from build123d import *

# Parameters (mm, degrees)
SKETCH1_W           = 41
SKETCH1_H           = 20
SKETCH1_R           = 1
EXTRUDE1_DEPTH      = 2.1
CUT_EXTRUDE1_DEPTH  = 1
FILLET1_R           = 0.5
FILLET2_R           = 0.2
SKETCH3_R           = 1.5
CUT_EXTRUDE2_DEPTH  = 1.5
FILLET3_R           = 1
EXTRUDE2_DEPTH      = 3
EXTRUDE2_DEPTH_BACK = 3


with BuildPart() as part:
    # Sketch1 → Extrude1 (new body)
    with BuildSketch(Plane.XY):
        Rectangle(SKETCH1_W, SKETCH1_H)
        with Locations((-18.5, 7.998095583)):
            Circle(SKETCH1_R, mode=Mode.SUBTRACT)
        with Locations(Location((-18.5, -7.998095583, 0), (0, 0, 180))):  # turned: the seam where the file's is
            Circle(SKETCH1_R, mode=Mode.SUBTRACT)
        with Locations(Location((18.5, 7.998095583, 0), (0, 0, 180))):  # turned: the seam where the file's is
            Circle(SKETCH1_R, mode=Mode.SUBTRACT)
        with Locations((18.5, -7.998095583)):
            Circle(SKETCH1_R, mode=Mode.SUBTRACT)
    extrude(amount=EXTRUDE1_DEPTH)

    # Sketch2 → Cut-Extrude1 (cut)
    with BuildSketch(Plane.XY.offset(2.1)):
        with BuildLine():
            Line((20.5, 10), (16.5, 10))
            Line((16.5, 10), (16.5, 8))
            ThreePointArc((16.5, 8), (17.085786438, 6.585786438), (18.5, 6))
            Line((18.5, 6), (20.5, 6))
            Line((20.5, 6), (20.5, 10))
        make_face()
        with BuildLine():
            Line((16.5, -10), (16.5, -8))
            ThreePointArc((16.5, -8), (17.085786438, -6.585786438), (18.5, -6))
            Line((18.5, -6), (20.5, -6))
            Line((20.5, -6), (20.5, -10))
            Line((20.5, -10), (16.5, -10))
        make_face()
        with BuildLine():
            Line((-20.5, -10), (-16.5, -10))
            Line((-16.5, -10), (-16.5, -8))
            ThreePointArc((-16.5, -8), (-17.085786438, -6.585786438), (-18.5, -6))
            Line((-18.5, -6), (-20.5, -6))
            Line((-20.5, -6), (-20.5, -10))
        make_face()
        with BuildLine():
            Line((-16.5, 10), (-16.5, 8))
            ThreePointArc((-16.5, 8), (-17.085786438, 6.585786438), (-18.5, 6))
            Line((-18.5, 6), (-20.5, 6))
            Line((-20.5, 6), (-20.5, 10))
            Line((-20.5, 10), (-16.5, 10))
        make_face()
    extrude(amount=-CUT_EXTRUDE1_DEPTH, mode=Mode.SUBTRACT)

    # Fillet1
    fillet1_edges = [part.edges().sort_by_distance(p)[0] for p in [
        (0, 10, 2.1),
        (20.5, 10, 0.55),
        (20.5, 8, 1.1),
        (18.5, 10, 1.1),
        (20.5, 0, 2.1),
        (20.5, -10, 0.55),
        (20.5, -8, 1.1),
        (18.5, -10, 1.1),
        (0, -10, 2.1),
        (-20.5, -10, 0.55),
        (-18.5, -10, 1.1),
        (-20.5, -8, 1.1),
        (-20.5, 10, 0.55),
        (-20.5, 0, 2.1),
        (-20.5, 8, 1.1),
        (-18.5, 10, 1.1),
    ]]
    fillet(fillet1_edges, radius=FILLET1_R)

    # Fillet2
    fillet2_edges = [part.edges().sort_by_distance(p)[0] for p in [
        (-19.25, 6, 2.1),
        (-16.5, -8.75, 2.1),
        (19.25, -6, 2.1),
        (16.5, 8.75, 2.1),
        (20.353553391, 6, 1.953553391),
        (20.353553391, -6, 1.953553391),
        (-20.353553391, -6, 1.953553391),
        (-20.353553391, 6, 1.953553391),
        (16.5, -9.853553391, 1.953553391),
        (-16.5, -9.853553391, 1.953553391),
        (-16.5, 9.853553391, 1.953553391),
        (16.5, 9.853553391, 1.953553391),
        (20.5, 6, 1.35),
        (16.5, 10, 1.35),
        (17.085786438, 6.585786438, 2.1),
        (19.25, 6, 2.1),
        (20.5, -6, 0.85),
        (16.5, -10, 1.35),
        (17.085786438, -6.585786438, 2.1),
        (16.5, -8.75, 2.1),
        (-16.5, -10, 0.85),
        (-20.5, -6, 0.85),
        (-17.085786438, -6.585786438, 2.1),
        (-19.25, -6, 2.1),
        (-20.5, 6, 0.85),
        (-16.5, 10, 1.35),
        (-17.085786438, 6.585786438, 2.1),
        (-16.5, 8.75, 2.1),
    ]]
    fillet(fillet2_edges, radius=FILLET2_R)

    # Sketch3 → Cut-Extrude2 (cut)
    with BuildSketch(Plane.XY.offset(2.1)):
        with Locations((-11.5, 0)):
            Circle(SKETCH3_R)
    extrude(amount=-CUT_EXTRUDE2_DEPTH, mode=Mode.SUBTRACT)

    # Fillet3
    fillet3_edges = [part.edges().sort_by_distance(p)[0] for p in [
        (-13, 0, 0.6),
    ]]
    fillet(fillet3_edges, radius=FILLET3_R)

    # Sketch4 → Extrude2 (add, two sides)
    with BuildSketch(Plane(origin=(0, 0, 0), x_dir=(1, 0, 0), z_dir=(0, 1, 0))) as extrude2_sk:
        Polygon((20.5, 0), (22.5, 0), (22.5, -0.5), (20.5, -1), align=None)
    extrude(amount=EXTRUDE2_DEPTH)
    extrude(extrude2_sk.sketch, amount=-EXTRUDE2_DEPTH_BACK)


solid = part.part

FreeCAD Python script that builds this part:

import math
import FreeCAD as App
import Part
import Sketcher

V = App.Vector


def edges_at(feature, points):
    """Names of the edges that pass closest to the given points."""
    edges = feature.Shape.Edges
    near = lambda p: min(range(len(edges)), key=lambda i: edges[i].distToShape(Part.Vertex(*p))[0])
    return sorted({f"Edge{near(p) + 1}" for p in points})


def add_polygon(sketch, points):
    """Adds a closed chain of lines whose ends are joined by coincident constraints."""
    first, n = sketch.GeometryCount, len(points)
    for a, b in zip(points, points[1:] + points[:1]):
        sketch.addGeometry(Part.LineSegment(App.Vector(*a, 0), App.Vector(*b, 0)), False)
    for i in range(n):
        sketch.addConstraint(Sketcher.Constraint("Coincident", first + i, 2, first + (i + 1) % n, 1))

doc = App.newDocument("Part")
params = doc.addObject("Spreadsheet::Sheet", "Params")
for row, (alias, value) in enumerate([
    ("sketch1_diameter", "2 mm"),
    ("sketch1_width", "41 mm"),
    ("sketch1_height", "20 mm"),
    ("pad1_length", "2.1 mm"),
    ("sketch2_radius", "2 mm"),
    ("sketch2_width", "4 mm"),
    ("pocket1_length", "1 mm"),
    ("fillet_radius", "0.5 mm"),
    ("fillet2_radius", "0.2 mm"),
    ("sketch3_diameter", "3 mm"),
    ("pocket2_length", "1.5 mm"),
    ("fillet3_radius", "1 mm"),
    ("sketch4_width", "2 mm"),
    ("sketch4_height", "1 mm"),
    ("sketch4_height2", "0.5 mm"),
    ("pad2_length", "3 mm"),
    ("pad2_length2", "3 mm"),
], start=1):
    params.set(f"A{row}", alias)
    params.set(f"B{row}", "=" + value)
    params.setAlias(f"B{row}", alias)

body = doc.addObject("PartDesign::Body", "Body")

# Sketch on XY plane
sketch1 = doc.addObject("Sketcher::SketchObject", "Sketch")
body.addObject(sketch1)
sketch1.AttachmentSupport = (doc.XY_Plane, [""])
sketch1.MapMode = "FlatFace"
add_polygon(sketch1, [(-20.5, 10), (-20.5, -10), (20.5, -10), (20.5, 10)])  # lines 0-3
sketch1.addGeometry(Part.Circle(V(-18.5, -7.998096, 0), V(0, 0, 1), 1), False)  # 4
sketch1.addGeometry(Part.Circle(V(18.5, -7.998096, 0), V(0, 0, 1), 1), False)  # 5
sketch1.addGeometry(Part.Circle(V(-18.5, 7.998096, 0), V(0, 0, 1), 1), False)  # 6
sketch1.addGeometry(Part.Circle(V(18.5, 7.998096, 0), V(0, 0, 1), 1), False)  # 7
sketch1.addConstraint(Sketcher.Constraint("Vertical", 0))
sketch1.addConstraint(Sketcher.Constraint("Horizontal", 1))
sketch1.addConstraint(Sketcher.Constraint("Vertical", 2))
sketch1.addConstraint(Sketcher.Constraint("Horizontal", 3))
sketch1.addConstraint(Sketcher.Constraint("Equal", 4, 5))
sketch1.addConstraint(Sketcher.Constraint("Equal", 5, 6))
sketch1.addConstraint(Sketcher.Constraint("Equal", 6, 7))
sketch1.addConstraint(Sketcher.Constraint("Symmetric", 5, 3, 6, 3, -1, 1))
sketch1.addConstraint(Sketcher.Constraint("Symmetric", 4, 3, 7, 3, -1, 1))
sketch1.addConstraint(Sketcher.Constraint("Symmetric", 0, 2, 2, 2, -1, 1))
sketch1.addConstraint(Sketcher.Constraint("Symmetric", 4, 3, 5, 3, -2))
sketch1.addConstraint(Sketcher.Constraint("Diameter", 4, 2.0))
sketch1.addConstraint(Sketcher.Constraint("DistanceX", 1, 1, 1, 2, 41.0))
sketch1.addConstraint(Sketcher.Constraint("DistanceY", 0, 2, 0, 1, 20.0))
sketch1.addConstraint(Sketcher.Constraint("DistanceX", 4, 3, 5, 3, 37.0))
sketch1.addConstraint(Sketcher.Constraint("DistanceY", 4, 3, 6, 3, 15.996191))
sketch1.setExpression("Constraints[15]", "Params.sketch1_diameter")
sketch1.setExpression("Constraints[16]", "Params.sketch1_width")
sketch1.setExpression("Constraints[17]", "Params.sketch1_height")
pad1 = doc.addObject("PartDesign::Pad", "Pad")
body.addObject(pad1)
pad1.Profile = sketch1
pad1.setExpression("Length", "Params.pad1_length")

# Sketch on XY plane
sketch2 = doc.addObject("Sketcher::SketchObject", "Sketch001")
body.addObject(sketch2)
sketch2.AttachmentSupport = (doc.XY_Plane, [""])
sketch2.MapMode = "FlatFace"
sketch2.AttachmentOffset = App.Placement(V(0, 0, 2.1), App.Rotation())
sketch2.addGeometry(Part.LineSegment(V(20.5, 10, 0), V(16.5, 10, 0)), False)
sketch2.addGeometry(Part.LineSegment(V(16.5, 10, 0), V(16.5, 8, 0)), False)
sketch2.addGeometry(Part.ArcOfCircle(Part.Circle(V(18.5, 8, 0), V(0, 0, 1), 2), math.radians(-180), math.radians(-90)), False)
sketch2.addGeometry(Part.LineSegment(V(18.5, 6, 0), V(20.5, 6, 0)), False)
sketch2.addGeometry(Part.LineSegment(V(20.5, 6, 0), V(20.5, 10, 0)), False)
sketch2.addGeometry(Part.LineSegment(V(16.5, -8, 0), V(16.5, -10, 0)), False)
sketch2.addGeometry(Part.LineSegment(V(16.5, -10, 0), V(20.5, -10, 0)), False)
sketch2.addGeometry(Part.LineSegment(V(20.5, -10, 0), V(20.5, -6, 0)), False)
sketch2.addGeometry(Part.LineSegment(V(20.5, -6, 0), V(18.5, -6, 0)), False)
sketch2.addGeometry(Part.ArcOfCircle(Part.Circle(V(18.5, -8, 0), V(0, 0, 1), 2), math.radians(90), math.radians(180)), False)
sketch2.addGeometry(Part.LineSegment(V(-20.5, -10, 0), V(-16.5, -10, 0)), False)
sketch2.addGeometry(Part.LineSegment(V(-16.5, -10, 0), V(-16.5, -8, 0)), False)
sketch2.addGeometry(Part.ArcOfCircle(Part.Circle(V(-18.5, -8, 0), V(0, 0, 1), 2), math.radians(0), math.radians(90)), False)
sketch2.addGeometry(Part.LineSegment(V(-18.5, -6, 0), V(-20.5, -6, 0)), False)
sketch2.addGeometry(Part.LineSegment(V(-20.5, -6, 0), V(-20.5, -10, 0)), False)
sketch2.addGeometry(Part.LineSegment(V(-16.5, 8, 0), V(-16.5, 10, 0)), False)
sketch2.addGeometry(Part.LineSegment(V(-16.5, 10, 0), V(-20.5, 10, 0)), False)
sketch2.addGeometry(Part.LineSegment(V(-20.5, 10, 0), V(-20.5, 6, 0)), False)
sketch2.addGeometry(Part.LineSegment(V(-20.5, 6, 0), V(-18.5, 6, 0)), False)
sketch2.addGeometry(Part.ArcOfCircle(Part.Circle(V(-18.5, 8, 0), V(0, 0, 1), 2), math.radians(-90), math.radians(0)), False)
sketch2.addConstraint(Sketcher.Constraint("Coincident", 0, 2, 1, 1))
sketch2.addConstraint(Sketcher.Constraint("Tangent", 1, 2, 2, 1))
sketch2.addConstraint(Sketcher.Constraint("Tangent", 2, 2, 3, 1))
sketch2.addConstraint(Sketcher.Constraint("Coincident", 3, 2, 4, 1))
sketch2.addConstraint(Sketcher.Constraint("Coincident", 4, 2, 0, 1))
sketch2.addConstraint(Sketcher.Constraint("Coincident", 5, 2, 6, 1))
sketch2.addConstraint(Sketcher.Constraint("Coincident", 6, 2, 7, 1))
sketch2.addConstraint(Sketcher.Constraint("Coincident", 7, 2, 8, 1))
sketch2.addConstraint(Sketcher.Constraint("Tangent", 8, 2, 9, 1))
sketch2.addConstraint(Sketcher.Constraint("Tangent", 9, 2, 5, 1))
sketch2.addConstraint(Sketcher.Constraint("Coincident", 10, 2, 11, 1))
sketch2.addConstraint(Sketcher.Constraint("Tangent", 11, 2, 12, 1))
sketch2.addConstraint(Sketcher.Constraint("Tangent", 12, 2, 13, 1))
sketch2.addConstraint(Sketcher.Constraint("Coincident", 13, 2, 14, 1))
sketch2.addConstraint(Sketcher.Constraint("Coincident", 14, 2, 10, 1))
sketch2.addConstraint(Sketcher.Constraint("Coincident", 15, 2, 16, 1))
sketch2.addConstraint(Sketcher.Constraint("Coincident", 16, 2, 17, 1))
sketch2.addConstraint(Sketcher.Constraint("Coincident", 17, 2, 18, 1))
sketch2.addConstraint(Sketcher.Constraint("Tangent", 18, 2, 19, 1))
sketch2.addConstraint(Sketcher.Constraint("Tangent", 19, 2, 15, 1))
sketch2.addConstraint(Sketcher.Constraint("Horizontal", 0))
sketch2.addConstraint(Sketcher.Constraint("Vertical", 1))
sketch2.addConstraint(Sketcher.Constraint("Horizontal", 3))
sketch2.addConstraint(Sketcher.Constraint("Vertical", 4))
sketch2.addConstraint(Sketcher.Constraint("Vertical", 5))
sketch2.addConstraint(Sketcher.Constraint("Horizontal", 6))
sketch2.addConstraint(Sketcher.Constraint("Vertical", 7))
sketch2.addConstraint(Sketcher.Constraint("Horizontal", 8))
sketch2.addConstraint(Sketcher.Constraint("Horizontal", 10))
sketch2.addConstraint(Sketcher.Constraint("Vertical", 11))
sketch2.addConstraint(Sketcher.Constraint("Horizontal", 13))
sketch2.addConstraint(Sketcher.Constraint("Vertical", 14))
sketch2.addConstraint(Sketcher.Constraint("Vertical", 15))
sketch2.addConstraint(Sketcher.Constraint("Horizontal", 16))
sketch2.addConstraint(Sketcher.Constraint("Vertical", 17))
sketch2.addConstraint(Sketcher.Constraint("Horizontal", 18))
sketch2.addConstraint(Sketcher.Constraint("Equal", 2, 9))
sketch2.addConstraint(Sketcher.Constraint("Equal", 9, 12))
sketch2.addConstraint(Sketcher.Constraint("Equal", 12, 19))
sketch2.addConstraint(Sketcher.Constraint("Symmetric", 2, 3, 12, 3, -1, 1))
sketch2.addConstraint(Sketcher.Constraint("Symmetric", 9, 3, 19, 3, -1, 1))
sketch2.addConstraint(Sketcher.Constraint("Symmetric", 4, 2, 14, 2, -1, 1))
sketch2.addConstraint(Sketcher.Constraint("Symmetric", 6, 2, 16, 2, -1, 1))
sketch2.addConstraint(Sketcher.Constraint("Symmetric", 9, 3, 12, 3, -2))
sketch2.addConstraint(Sketcher.Constraint("Symmetric", 6, 2, 14, 2, -2))
sketch2.addConstraint(Sketcher.Constraint("Equal", 18, 1))
sketch2.addConstraint(Sketcher.Constraint("Radius", 2, 2.0))
sketch2.addConstraint(Sketcher.Constraint("DistanceX", 0, 2, 0, 1, 4.0))
sketch2.addConstraint(Sketcher.Constraint("DistanceY", -1, 1, 2, 3, 8.0))
sketch2.addConstraint(Sketcher.Constraint("DistanceX", 12, 3, 9, 3, 37.0))
sketch2.setExpression("Constraints[46]", "Params.sketch2_radius")
sketch2.setExpression("Constraints[47]", "Params.sketch2_width")
pocket1 = doc.addObject("PartDesign::Pocket", "Pocket")
body.addObject(pocket1)
pocket1.Profile = sketch2
pocket1.setExpression("Length", "Params.pocket1_length")
doc.recompute()

fillet = doc.addObject("PartDesign::Fillet", "Fillet")
body.addObject(fillet)
fillet.Base = (pocket1, edges_at(pocket1, [
    (0, 10, 2.1),
    (20.5, 10, 0.55),
    (20.5, 8, 1.1),
    (18.5, 10, 1.1),
    (20.5, 0, 2.1),
    (20.5, -10, 0.55),
    (20.5, -8, 1.1),
    (18.5, -10, 1.1),
    (0, -10, 2.1),
    (-20.5, -10, 0.55),
    (-18.5, -10, 1.1),
    (-20.5, -8, 1.1),
    (-20.5, 10, 0.55),
    (-20.5, 0, 2.1),
    (-20.5, 8, 1.1),
    (-18.5, 10, 1.1),
]))
fillet.setExpression("Radius", "Params.fillet_radius")
doc.recompute()

fillet2 = doc.addObject("PartDesign::Fillet", "Fillet001")
body.addObject(fillet2)
fillet2.Base = (fillet, edges_at(fillet, [
    (-19.25, 6, 2.1),
    (-16.5, -8.75, 2.1),
    (19.25, -6, 2.1),
    (16.5, 8.75, 2.1),
    (20.354, 6, 1.954),
    (20.354, -6, 1.954),
    (-20.354, -6, 1.954),
    (-20.354, 6, 1.954),
    (16.5, -9.854, 1.954),
    (-16.5, -9.854, 1.954),
    (-16.5, 9.854, 1.954),
    (16.5, 9.854, 1.954),
    (20.5, 6, 1.1),
    (16.5, 10, 1.1),
    (17.086, 6.586, 2.1),
    (19.25, 6, 2.1),
    (20.5, -6, 1.1),
    (16.5, -10, 1.1),
    (17.086, -6.586, 2.1),
    (16.5, -8.75, 2.1),
    (-16.5, -10, 1.1),
    (-20.5, -6, 1.1),
    (-17.086, -6.586, 2.1),
    (-19.25, -6, 2.1),
    (-20.5, 6, 1.1),
    (-16.5, 10, 1.1),
    (-17.086, 6.586, 2.1),
    (-16.5, 8.75, 2.1),
]))
fillet2.setExpression("Radius", "Params.fillet2_radius")

# Sketch on XY plane
sketch3 = doc.addObject("Sketcher::SketchObject", "Sketch002")
body.addObject(sketch3)
sketch3.AttachmentSupport = (doc.XY_Plane, [""])
sketch3.MapMode = "FlatFace"
sketch3.AttachmentOffset = App.Placement(V(0, 0, 2.1), App.Rotation())
sketch3.addGeometry(Part.Circle(V(-11.5, 0, 0), V(0, 0, 1), 1.5), False)
sketch3.addConstraint(Sketcher.Constraint("PointOnObject", 0, 3, -1))
sketch3.addConstraint(Sketcher.Constraint("Diameter", 0, 3.0))
sketch3.addConstraint(Sketcher.Constraint("DistanceX", 0, 3, -1, 1, 11.5))
sketch3.setExpression("Constraints[1]", "Params.sketch3_diameter")
pocket2 = doc.addObject("PartDesign::Pocket", "Pocket001")
body.addObject(pocket2)
pocket2.Profile = sketch3
pocket2.setExpression("Length", "Params.pocket2_length")
doc.recompute()

fillet3 = doc.addObject("PartDesign::Fillet", "Fillet002")
body.addObject(fillet3)
fillet3.Base = (pocket2, edges_at(pocket2, [(-13, 0, 0.6)]))
fillet3.setExpression("Radius", "Params.fillet3_radius")

# Sketch on XZ plane
sketch4 = doc.addObject("Sketcher::SketchObject", "Sketch003")
body.addObject(sketch4)
sketch4.AttachmentSupport = (doc.XZ_Plane, [""])
sketch4.MapMode = "FlatFace"
add_polygon(sketch4, [(22.5, 0), (20.5, 0), (20.5, 1), (22.5, 0.5)])  # lines 0-3
sketch4.addConstraint(Sketcher.Constraint("Horizontal", 0))
sketch4.addConstraint(Sketcher.Constraint("Vertical", 1))
sketch4.addConstraint(Sketcher.Constraint("Vertical", 3))
sketch4.addConstraint(Sketcher.Constraint("PointOnObject", 0, 2, -1))
sketch4.addConstraint(Sketcher.Constraint("DistanceX", 0, 2, 0, 1, 2.0))
sketch4.addConstraint(Sketcher.Constraint("DistanceY", 1, 1, 1, 2, 1.0))
sketch4.addConstraint(Sketcher.Constraint("DistanceY", 3, 2, 3, 1, 0.5))
sketch4.addConstraint(Sketcher.Constraint("DistanceX", -1, 1, 0, 2, 20.5))
sketch4.setExpression("Constraints[8]", "Params.sketch4_width")
sketch4.setExpression("Constraints[9]", "Params.sketch4_height")
sketch4.setExpression("Constraints[10]", "Params.sketch4_height2")
pad2 = doc.addObject("PartDesign::Pad", "Pad001")
body.addObject(pad2)
pad2.Profile = sketch4
pad2.Type = "TwoLengths"
pad2.setExpression("Length", "Params.pad2_length")
pad2.setExpression("Length2", "Params.pad2_length2")
pad2.Reversed = True

doc.recompute()
